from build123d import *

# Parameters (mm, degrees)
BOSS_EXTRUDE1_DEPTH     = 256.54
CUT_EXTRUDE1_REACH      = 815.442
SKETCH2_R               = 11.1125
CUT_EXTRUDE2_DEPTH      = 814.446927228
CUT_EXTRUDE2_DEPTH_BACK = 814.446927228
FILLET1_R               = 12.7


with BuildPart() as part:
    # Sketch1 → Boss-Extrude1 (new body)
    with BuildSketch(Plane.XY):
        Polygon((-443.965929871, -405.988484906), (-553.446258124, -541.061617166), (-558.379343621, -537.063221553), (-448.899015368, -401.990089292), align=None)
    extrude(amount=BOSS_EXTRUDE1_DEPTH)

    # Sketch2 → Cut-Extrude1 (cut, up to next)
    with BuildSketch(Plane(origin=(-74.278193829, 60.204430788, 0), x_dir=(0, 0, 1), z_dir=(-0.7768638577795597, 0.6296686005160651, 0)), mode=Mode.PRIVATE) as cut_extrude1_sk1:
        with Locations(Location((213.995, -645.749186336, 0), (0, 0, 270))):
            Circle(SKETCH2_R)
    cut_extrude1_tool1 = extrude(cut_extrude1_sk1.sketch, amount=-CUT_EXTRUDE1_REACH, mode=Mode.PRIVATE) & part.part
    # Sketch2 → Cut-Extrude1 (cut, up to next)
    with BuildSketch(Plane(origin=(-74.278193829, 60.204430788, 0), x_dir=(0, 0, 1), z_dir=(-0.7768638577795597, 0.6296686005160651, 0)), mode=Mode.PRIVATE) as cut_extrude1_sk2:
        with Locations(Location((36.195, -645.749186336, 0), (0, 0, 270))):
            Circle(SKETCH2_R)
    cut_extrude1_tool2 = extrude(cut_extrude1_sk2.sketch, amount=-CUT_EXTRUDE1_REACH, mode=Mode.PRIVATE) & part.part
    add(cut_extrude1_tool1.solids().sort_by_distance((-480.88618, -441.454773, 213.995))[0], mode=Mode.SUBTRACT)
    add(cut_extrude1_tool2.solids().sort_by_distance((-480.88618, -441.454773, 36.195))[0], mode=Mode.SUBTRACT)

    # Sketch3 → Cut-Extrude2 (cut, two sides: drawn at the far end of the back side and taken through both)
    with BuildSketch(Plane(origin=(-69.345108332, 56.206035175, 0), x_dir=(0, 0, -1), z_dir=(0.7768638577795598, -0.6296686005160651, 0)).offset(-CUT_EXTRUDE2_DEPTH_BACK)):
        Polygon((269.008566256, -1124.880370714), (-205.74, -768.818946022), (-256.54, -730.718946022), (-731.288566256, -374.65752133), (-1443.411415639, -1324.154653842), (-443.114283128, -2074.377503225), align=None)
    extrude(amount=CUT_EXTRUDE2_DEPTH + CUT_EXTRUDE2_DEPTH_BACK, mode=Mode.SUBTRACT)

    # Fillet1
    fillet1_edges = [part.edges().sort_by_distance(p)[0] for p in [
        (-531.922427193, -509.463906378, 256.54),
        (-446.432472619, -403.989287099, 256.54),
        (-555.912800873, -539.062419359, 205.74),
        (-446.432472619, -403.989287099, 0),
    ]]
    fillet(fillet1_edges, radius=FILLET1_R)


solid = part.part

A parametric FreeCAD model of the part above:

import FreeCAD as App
import Part
import Sketcher
from FreeCAD import Vector
Q = App.Units.Quantity


def edges_at(feature, points):
    """Names of the edges that pass closest to the given points."""
    edges = feature.Shape.Edges
    near = lambda p: min(range(len(edges)), key=lambda i: edges[i].distToShape(Part.Vertex(*p))[0])
    return sorted({f"Edge{near(p) + 1}" for p in points})


def add_polygon(sketch, points):
    """Adds a closed chain of lines whose ends are joined by coincident constraints."""
    first, n = sketch.GeometryCount, len(points)
    for a, b in zip(points, points[1:] + points[:1]):
        sketch.addGeometry(Part.LineSegment(App.Vector(*a, 0), App.Vector(*b, 0)), False)
    for i in range(n):
        sketch.addConstraint(Sketcher.Constraint("Coincident", first + i, 2, first + (i + 1) % n, 1))

doc = App.newDocument("Part")
body = doc.addObject("PartDesign::Body", "Body")

# Sketch on XY plane
sketch1 = doc.addObject("Sketcher::SketchObject", "Sketch")
body.addObject(sketch1)
sketch1.AttachmentSupport = (doc.XY_Plane, [""])
sketch1.MapMode = "FlatFace"
add_polygon(sketch1, [(-553.446258, -541.061617), (-443.96593, -405.988485), (-448.899015, -401.990089), (-558.379344, -537.063222)])  # lines 0-3
sketch1.addConstraint([
    Sketcher.Constraint("Perpendicular", 0, 1),
    Sketcher.Constraint("Perpendicular", 1, 2),
    Sketcher.Constraint("Perpendicular", 2, 3),
    Sketcher.Constraint("Distance", 1, Q("0.25 in")),
    Sketcher.Constraint("Distance", 0, 173.86976),
    Sketcher.Constraint("DistanceX", 0, 2, -1, 1, 443.96593),
    Sketcher.Constraint("DistanceY", 1, 2, -1, 1, 401.990089),
    Sketcher.Constraint("DistanceY", 2, 2, -1, 1, 537.063222),
])
pad1 = doc.addObject("PartDesign::Pad", "Pad")
body.addObject(pad1)
pad1.Profile = sketch1
pad1.Length = Q("10.1 in")

# Sketch on an angled plane
sketch2 = doc.addObject("Sketcher::SketchObject", "Sketch001")
body.addObject(sketch2)
sketch2.Placement = App.Placement(Vector(-74.278194, 60.204431, 0), App.Rotation(Vector(0, 0, 1), Vector(0.629668601, 0.776863858, 0), Vector(-0.776863858, 0.629668601, 0), "ZXY"))
sketch2.addGeometry(Part.Circle(Vector(213.995, -645.749187, 0), Vector(0, 0, 1), 11.1125), False)
sketch2.addConstraint([
    Sketcher.Constraint("Diameter", 0, Q("0.875 in")),
    Sketcher.Constraint("DistanceX", -1, 1, 0, 3, Q("8.425 in")),
    Sketcher.Constraint("DistanceY", 0, 3, -1, 1, 645.749187),
])
pocket1 = doc.addObject("PartDesign::Pocket", "Pocket")
body.addObject(pocket1)
pocket1.Profile = sketch2
pocket1.Type = "UpToFirst"

# Sketch on an angled plane
sketch3 = doc.addObject("Sketcher::SketchObject", "Sketch002")
body.addObject(sketch3)
sketch3.Placement = App.Placement(Vector(-74.278194, 60.204431, 0), App.Rotation(Vector(0, 0, 1), Vector(0.629668601, 0.776863858, 0), Vector(-0.776863858, 0.629668601, 0), "ZXY"))
sketch3.addGeometry(Part.Circle(Vector(36.195, -645.749187, 0), Vector(0, 0, 1), 11.1125), False)
sketch3.addConstraint([
    Sketcher.Constraint("Diameter", 0, Q("0.875 in")),
    Sketcher.Constraint("DistanceX", -1, 1, 0, 3, Q("1.425 in")),
    Sketcher.Constraint("DistanceY", 0, 3, -1, 1, 645.749187),
])
pocket2 = doc.addObject("PartDesign::Pocket", "Pocket001")
body.addObject(pocket2)
pocket2.Profile = sketch3
pocket2.Type = "UpToFirst"

# Sketch on an angled plane
sketch4 = doc.addObject("Sketcher::SketchObject", "Sketch003")
body.addObject(sketch4)
sketch4.Placement = App.Placement(Vector(-69.345108, 56.206035, 0), App.Rotation(Vector(0, 0, -1), Vector(0.629668601, 0.776863858, 0), Vector(0.776863858, -0.629668601, 0), "ZXY"))
add_polygon(sketch4, [(269.008566, -1124.880372), (-731.288566, -374.657522), (-1443.411416, -1324.154655), (-443.114283, -2074.377505)])  # lines 0-3
sketch4.addConstraint([
    Sketcher.Constraint("Perpendicular", 0, 1),
    Sketcher.Constraint("Perpendicular", 1, 2),
    Sketcher.Constraint("Perpendicular", 2, 3),
    Sketcher.Constraint("DistanceY", 0, 2, -1, 1, 374.657522),
    Sketcher.Constraint("DistanceY", 3, 2, -1, 1, 1124.880372),
    Sketcher.Constraint("DistanceX", 1, 2, 0, 2, 712.122849),
    Sketcher.Constraint("DistanceX", 1, 2, 3, 2, 1712.419982),
    Sketcher.Constraint("DistanceX", 0, 2, -1, 1, 731.288566),
])
pocket3 = doc.addObject("PartDesign::Pocket", "Pocket002")
body.addObject(pocket3)
pocket3.Profile = sketch4
pocket3.Type = "ThroughAll"
pocket3.Midplane = True
doc.recompute()

fillet = doc.addObject("PartDesign::Fillet", "Fillet")
body.addObject(fillet)
fillet.Base = (pocket3, edges_at(pocket3, [
    (-531.922, -509.464, 256.54),
    (-446.432, -403.989, 256.54),
    (-555.913, -539.062, 205.74),
    (-446.432, -403.989, 0),
]))
fillet.Radius = Q("0.5 in")

doc.recompute()
